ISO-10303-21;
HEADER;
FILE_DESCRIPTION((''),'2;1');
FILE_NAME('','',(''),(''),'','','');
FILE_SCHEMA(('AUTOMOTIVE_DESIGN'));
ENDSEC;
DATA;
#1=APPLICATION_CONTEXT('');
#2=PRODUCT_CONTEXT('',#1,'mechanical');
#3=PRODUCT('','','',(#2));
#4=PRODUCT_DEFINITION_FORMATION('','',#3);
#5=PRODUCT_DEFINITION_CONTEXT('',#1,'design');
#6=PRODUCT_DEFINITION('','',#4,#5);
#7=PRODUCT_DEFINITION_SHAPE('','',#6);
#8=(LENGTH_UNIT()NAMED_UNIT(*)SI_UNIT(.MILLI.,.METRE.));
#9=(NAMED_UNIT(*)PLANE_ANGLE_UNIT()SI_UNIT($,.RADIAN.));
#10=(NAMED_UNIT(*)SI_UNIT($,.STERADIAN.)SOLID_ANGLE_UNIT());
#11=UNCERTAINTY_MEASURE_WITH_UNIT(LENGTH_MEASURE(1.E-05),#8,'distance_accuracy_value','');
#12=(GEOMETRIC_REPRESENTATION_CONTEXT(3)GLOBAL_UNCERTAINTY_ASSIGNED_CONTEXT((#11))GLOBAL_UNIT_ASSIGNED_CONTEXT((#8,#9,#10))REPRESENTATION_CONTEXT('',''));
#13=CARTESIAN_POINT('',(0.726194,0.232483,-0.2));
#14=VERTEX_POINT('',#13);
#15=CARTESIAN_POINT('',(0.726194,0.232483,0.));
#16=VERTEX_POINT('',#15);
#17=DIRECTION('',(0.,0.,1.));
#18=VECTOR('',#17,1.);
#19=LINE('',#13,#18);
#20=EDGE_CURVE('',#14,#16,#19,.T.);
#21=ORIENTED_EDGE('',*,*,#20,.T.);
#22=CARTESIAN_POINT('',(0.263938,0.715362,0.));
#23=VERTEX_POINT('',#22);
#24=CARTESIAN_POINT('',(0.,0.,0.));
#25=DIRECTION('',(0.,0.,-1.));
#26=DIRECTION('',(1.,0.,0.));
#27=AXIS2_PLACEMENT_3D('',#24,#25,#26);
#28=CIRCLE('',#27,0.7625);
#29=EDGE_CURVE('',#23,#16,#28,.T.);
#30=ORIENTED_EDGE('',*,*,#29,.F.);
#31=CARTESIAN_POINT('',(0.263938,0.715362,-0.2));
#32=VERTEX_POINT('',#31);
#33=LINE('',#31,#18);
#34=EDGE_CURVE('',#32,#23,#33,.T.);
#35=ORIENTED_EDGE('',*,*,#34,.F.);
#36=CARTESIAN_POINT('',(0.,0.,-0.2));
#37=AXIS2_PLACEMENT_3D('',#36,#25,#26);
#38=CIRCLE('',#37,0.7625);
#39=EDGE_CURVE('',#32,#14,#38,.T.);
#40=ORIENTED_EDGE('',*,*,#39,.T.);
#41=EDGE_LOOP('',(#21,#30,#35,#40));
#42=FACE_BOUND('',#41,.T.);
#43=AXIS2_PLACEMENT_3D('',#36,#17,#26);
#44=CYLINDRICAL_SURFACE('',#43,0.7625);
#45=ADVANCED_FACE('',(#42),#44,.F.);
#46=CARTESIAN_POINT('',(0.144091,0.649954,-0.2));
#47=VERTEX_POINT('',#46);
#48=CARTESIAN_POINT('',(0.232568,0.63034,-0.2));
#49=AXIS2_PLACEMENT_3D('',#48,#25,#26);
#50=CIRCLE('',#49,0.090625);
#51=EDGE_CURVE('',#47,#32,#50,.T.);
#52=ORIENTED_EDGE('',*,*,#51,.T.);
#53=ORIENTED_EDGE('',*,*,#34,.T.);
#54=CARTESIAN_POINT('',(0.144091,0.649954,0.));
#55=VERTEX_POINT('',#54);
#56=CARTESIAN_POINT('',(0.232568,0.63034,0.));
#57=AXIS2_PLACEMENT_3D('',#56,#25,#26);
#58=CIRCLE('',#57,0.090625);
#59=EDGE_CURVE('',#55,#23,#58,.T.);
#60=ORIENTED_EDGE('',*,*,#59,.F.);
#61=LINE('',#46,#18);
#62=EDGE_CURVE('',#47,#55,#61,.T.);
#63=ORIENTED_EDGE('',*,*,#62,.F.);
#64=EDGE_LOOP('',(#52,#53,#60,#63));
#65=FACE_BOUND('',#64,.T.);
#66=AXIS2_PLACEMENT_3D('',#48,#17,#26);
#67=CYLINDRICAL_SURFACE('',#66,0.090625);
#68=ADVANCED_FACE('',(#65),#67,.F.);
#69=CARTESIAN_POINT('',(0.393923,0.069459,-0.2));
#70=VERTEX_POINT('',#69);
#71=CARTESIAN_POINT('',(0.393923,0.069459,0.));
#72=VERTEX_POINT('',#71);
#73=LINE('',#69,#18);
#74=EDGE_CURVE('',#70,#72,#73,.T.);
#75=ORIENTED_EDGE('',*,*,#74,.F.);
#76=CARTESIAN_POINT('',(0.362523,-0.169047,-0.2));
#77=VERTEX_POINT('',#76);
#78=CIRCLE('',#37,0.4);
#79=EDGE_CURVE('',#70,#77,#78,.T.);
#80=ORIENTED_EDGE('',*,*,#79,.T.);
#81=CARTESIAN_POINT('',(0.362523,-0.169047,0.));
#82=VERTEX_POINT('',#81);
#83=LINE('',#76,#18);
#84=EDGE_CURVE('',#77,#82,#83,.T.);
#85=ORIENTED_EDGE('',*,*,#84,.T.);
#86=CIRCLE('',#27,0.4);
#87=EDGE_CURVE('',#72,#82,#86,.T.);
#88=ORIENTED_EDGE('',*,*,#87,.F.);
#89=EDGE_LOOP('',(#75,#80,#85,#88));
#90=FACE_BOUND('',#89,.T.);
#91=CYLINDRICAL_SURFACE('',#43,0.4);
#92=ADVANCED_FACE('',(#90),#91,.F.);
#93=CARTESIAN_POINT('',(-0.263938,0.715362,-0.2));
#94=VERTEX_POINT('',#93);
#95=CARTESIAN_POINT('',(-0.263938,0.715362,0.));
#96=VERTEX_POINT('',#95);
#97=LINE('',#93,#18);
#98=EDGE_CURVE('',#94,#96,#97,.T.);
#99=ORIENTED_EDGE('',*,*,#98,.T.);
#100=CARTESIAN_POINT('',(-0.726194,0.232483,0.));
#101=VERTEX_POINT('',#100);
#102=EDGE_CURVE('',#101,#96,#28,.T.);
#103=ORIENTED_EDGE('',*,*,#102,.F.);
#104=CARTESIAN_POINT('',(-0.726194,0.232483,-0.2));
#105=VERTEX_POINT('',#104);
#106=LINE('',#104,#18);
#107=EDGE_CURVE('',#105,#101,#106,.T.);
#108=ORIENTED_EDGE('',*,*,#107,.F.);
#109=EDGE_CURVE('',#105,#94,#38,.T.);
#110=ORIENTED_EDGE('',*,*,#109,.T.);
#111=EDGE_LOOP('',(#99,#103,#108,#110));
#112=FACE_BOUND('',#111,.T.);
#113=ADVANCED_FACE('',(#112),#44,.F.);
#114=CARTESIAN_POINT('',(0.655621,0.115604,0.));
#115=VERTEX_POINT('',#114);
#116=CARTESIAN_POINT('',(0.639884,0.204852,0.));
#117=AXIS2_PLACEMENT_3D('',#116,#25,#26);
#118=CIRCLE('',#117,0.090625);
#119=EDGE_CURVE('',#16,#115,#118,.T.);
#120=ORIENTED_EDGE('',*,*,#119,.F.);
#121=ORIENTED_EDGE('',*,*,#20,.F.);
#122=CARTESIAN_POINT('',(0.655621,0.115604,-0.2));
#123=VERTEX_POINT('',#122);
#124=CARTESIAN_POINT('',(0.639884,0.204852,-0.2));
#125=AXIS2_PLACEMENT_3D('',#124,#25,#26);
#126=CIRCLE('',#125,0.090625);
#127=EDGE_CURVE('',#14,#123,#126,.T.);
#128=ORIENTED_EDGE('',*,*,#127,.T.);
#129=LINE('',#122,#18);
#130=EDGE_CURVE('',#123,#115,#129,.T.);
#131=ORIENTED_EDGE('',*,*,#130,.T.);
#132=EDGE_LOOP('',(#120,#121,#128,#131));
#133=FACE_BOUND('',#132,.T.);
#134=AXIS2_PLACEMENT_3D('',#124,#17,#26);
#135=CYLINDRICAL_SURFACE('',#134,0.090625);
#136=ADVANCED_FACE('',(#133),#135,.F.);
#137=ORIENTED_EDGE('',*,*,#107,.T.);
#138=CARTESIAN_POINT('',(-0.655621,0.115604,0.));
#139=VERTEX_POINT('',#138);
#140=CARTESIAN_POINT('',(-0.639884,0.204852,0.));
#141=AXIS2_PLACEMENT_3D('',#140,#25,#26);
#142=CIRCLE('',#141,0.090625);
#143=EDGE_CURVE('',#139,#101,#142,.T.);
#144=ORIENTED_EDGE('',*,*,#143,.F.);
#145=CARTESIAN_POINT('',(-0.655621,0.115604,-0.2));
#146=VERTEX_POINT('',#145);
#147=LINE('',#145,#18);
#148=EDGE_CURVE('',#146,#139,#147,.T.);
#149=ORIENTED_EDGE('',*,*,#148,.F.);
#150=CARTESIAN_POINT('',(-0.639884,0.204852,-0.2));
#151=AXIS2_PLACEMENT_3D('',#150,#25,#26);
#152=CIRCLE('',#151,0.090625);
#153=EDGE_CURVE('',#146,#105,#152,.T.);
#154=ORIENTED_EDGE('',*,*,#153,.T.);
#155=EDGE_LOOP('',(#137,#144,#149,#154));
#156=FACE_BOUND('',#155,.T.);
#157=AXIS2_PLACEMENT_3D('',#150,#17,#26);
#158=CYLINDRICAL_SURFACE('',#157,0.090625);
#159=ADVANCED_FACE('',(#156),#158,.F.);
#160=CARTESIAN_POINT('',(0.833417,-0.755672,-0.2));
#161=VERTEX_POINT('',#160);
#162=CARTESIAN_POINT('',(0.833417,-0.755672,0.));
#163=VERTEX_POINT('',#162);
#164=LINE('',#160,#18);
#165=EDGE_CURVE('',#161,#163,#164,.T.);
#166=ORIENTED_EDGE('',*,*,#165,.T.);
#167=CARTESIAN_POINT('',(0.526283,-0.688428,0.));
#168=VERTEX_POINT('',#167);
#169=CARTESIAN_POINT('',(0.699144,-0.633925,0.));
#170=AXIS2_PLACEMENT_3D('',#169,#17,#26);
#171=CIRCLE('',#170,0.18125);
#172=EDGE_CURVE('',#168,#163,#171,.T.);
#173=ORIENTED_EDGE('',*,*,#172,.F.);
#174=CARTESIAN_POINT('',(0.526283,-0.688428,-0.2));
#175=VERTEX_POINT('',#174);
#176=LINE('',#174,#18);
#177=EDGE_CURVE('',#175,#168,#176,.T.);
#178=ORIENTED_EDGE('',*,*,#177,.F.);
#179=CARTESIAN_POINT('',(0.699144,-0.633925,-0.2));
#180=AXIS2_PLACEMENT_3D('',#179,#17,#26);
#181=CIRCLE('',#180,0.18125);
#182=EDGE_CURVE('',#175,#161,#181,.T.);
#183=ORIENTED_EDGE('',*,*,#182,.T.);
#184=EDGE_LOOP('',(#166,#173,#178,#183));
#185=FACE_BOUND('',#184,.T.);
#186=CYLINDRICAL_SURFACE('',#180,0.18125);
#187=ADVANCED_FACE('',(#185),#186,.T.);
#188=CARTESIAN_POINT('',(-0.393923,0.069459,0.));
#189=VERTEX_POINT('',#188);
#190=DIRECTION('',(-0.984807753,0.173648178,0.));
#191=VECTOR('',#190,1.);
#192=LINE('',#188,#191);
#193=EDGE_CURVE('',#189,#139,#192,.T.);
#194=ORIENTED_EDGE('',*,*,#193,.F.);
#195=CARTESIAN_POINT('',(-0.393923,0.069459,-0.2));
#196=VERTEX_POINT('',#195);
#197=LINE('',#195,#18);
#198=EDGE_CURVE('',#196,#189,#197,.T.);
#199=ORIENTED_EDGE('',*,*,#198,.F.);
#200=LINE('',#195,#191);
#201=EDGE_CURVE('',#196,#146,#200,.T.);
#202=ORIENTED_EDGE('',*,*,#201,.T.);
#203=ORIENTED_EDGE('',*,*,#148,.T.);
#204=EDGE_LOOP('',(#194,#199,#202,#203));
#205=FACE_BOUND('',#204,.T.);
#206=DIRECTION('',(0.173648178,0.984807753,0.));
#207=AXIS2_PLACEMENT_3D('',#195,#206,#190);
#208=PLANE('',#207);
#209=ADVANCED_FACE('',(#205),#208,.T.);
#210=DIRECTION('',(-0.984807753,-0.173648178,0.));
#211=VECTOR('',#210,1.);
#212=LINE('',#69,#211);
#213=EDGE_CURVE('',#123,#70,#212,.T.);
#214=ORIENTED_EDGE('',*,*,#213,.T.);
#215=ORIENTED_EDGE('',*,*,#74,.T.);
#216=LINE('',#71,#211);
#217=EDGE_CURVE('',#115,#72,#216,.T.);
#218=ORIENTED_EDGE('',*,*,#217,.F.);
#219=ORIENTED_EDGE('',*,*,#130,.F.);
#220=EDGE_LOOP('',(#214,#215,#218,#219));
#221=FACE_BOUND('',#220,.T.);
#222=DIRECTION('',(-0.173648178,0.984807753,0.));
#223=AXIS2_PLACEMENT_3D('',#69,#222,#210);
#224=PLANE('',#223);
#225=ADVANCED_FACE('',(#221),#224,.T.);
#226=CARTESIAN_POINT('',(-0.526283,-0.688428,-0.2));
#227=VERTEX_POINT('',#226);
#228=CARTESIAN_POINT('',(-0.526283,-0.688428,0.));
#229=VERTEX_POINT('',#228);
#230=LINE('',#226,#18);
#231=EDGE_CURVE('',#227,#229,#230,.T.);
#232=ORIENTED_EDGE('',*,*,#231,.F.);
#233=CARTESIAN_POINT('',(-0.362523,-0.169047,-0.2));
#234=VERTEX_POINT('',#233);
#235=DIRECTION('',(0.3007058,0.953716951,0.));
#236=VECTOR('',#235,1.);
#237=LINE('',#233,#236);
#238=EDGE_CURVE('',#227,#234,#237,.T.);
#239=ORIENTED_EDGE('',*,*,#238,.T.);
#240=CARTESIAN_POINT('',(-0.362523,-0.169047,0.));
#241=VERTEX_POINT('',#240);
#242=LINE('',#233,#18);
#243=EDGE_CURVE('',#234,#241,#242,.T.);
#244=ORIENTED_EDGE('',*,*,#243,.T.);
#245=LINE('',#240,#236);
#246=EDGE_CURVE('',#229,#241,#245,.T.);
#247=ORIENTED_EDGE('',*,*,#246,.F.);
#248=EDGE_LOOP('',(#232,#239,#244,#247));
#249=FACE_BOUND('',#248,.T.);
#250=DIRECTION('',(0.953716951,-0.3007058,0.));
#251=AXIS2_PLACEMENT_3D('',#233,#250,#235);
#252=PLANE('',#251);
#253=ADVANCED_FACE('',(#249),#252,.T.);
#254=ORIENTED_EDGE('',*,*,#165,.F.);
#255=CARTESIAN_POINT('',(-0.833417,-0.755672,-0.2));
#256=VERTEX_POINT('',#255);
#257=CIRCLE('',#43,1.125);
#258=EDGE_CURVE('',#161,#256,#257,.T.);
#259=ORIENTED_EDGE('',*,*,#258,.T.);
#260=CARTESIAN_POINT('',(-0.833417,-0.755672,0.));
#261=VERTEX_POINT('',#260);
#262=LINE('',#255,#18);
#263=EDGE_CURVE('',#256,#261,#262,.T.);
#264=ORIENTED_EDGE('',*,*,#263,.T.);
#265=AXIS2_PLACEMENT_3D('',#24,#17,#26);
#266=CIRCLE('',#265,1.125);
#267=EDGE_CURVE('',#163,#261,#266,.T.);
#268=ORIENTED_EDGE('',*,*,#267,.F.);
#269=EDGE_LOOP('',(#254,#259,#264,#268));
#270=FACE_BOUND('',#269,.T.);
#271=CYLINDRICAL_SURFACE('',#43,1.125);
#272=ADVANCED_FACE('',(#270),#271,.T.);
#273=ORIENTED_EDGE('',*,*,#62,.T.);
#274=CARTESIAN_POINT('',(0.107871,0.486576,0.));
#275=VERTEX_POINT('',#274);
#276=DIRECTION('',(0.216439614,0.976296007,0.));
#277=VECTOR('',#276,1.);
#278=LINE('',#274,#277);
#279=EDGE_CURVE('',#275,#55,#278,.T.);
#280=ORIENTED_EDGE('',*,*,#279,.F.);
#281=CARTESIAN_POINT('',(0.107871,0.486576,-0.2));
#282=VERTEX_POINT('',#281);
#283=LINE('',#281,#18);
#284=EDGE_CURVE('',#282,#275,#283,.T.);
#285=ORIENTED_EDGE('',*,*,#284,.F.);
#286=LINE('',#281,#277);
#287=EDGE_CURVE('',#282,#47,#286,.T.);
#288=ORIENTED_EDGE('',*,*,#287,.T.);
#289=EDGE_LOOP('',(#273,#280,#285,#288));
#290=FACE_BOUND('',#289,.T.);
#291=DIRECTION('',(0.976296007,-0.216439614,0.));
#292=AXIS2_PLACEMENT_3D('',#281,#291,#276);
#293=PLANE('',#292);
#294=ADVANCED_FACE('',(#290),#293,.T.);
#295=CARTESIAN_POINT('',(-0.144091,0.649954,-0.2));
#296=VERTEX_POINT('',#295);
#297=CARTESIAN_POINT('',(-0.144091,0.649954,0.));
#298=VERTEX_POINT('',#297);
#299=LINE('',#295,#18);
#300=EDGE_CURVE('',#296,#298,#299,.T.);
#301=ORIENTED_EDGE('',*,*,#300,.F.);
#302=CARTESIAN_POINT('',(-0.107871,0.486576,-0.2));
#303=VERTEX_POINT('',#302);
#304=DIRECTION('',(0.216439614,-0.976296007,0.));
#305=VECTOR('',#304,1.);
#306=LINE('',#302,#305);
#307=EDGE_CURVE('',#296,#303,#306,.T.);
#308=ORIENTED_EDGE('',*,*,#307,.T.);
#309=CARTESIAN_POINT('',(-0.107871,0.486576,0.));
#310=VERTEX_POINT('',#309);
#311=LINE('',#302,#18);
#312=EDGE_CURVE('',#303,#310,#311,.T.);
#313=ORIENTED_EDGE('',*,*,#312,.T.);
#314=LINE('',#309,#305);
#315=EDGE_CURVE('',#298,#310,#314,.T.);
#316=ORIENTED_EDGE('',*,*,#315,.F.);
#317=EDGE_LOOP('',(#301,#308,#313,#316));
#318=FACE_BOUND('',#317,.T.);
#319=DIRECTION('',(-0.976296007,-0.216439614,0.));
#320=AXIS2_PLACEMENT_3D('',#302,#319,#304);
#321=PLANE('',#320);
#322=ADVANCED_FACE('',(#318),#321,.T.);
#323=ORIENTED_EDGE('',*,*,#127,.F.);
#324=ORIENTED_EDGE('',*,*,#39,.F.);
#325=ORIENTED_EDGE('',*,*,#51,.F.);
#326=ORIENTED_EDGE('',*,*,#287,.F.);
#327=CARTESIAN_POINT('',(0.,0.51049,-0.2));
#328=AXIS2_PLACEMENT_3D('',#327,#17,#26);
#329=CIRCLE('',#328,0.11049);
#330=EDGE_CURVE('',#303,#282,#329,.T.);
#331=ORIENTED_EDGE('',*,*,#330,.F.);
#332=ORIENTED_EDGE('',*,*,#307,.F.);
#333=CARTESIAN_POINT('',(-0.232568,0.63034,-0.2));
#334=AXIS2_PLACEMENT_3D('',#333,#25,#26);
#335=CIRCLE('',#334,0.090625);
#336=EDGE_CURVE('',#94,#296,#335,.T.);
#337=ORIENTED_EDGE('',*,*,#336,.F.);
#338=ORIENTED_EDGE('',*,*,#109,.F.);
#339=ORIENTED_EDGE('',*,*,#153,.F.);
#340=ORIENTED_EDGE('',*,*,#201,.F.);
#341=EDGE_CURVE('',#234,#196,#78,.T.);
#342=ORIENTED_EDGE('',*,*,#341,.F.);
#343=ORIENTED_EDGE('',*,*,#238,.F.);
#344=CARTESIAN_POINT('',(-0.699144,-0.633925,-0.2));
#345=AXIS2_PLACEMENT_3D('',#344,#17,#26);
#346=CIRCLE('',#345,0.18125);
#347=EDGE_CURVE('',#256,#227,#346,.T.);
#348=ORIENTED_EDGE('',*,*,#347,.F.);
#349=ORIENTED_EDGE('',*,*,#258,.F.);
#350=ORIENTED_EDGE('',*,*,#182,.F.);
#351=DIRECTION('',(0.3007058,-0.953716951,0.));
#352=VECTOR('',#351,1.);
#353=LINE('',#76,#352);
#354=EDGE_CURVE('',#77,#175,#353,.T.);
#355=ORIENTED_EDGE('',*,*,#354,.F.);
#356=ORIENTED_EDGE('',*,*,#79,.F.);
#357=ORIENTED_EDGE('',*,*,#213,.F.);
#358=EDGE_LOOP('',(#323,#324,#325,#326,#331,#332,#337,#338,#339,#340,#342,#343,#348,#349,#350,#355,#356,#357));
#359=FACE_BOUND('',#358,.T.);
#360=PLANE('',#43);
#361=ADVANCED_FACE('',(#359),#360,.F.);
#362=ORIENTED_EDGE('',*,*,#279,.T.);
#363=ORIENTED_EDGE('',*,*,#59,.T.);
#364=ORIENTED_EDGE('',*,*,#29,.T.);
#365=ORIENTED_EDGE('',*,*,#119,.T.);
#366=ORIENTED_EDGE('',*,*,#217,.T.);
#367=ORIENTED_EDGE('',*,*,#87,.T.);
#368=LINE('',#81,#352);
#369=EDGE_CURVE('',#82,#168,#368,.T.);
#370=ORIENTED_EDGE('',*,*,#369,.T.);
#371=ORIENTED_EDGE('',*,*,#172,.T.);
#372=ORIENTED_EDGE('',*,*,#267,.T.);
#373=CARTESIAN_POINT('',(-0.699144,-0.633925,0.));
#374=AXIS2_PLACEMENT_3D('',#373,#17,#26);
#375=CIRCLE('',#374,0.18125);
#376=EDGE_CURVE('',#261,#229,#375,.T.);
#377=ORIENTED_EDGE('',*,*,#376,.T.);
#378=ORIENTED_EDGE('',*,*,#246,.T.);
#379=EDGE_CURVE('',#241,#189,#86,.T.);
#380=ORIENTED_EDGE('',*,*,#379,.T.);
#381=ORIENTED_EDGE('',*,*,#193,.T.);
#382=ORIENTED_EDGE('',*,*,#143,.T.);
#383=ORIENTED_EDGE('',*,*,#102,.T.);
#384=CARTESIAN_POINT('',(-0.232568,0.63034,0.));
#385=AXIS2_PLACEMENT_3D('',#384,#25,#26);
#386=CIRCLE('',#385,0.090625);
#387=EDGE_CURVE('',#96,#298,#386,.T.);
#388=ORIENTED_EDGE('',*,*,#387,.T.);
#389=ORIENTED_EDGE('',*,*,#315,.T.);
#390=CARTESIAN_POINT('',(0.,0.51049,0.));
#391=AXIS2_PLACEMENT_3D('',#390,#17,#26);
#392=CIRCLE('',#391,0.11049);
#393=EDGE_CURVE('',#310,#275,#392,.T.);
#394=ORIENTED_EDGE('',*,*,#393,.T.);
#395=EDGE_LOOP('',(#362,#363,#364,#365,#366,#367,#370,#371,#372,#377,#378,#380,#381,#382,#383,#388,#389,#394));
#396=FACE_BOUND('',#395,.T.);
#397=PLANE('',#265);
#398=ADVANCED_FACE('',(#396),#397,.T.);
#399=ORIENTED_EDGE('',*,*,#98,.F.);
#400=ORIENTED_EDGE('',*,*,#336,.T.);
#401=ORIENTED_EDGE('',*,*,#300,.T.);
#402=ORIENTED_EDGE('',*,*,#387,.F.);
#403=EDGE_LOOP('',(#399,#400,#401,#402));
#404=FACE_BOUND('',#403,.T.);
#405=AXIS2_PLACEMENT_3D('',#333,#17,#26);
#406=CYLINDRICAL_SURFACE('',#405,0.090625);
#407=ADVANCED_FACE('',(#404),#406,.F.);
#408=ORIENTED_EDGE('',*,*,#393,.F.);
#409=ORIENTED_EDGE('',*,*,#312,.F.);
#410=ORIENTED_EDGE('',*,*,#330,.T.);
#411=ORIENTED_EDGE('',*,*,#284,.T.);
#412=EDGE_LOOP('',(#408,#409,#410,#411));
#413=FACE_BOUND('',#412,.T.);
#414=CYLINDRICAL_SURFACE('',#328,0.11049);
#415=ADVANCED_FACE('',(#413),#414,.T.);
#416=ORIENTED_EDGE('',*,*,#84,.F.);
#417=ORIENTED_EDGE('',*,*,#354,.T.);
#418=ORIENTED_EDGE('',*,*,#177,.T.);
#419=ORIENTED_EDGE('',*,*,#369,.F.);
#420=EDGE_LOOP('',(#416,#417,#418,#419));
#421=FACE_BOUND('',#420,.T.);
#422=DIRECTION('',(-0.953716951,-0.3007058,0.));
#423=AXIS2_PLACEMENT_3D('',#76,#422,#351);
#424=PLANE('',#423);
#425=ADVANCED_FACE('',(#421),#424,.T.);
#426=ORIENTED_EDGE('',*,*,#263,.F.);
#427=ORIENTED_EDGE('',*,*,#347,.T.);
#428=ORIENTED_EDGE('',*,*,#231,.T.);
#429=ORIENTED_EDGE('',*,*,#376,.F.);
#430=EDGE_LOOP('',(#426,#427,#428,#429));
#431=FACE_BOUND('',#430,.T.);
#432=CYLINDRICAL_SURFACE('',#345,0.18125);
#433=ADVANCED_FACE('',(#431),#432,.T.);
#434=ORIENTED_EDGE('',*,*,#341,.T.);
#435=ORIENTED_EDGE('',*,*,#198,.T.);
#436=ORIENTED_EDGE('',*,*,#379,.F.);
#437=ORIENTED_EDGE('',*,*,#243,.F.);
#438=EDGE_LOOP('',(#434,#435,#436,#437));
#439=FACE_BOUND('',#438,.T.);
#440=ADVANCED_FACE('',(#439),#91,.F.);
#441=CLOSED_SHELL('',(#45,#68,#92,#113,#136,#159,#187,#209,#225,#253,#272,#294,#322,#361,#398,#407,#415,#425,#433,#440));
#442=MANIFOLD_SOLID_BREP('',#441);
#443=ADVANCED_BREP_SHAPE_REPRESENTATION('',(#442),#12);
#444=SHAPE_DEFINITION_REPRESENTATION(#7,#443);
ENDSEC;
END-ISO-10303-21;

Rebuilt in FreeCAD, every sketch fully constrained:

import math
import FreeCAD as App
import Part
import Sketcher
Q = App.Units.Quantity

doc = App.newDocument("Part")
params = doc.addObject("Spreadsheet::Sheet", "Params")
for row, (alias, value) in enumerate([
    ("sketch1_radius", "0.4 mm"),
    ("pad1_length", "0.2 mm"),
], start=1):
    params.set(f"A{row}", alias)
    params.set(f"B{row}", "=" + value)
    params.setAlias(f"B{row}", alias)

body = doc.addObject("PartDesign::Body", "Body")

# Sketch on XY plane
sketch1 = body.newObject("Sketcher::SketchObject", "Sketch")
sketch1.AttachmentSupport = (doc.getObject("XY_Plane"), [""])
sketch1.MapMode = "FlatFace"
sketch1.addGeometry([
    Part.LineSegment(App.Vector(0.66, 0.12, 0), App.Vector(0.39, 0.07, 0)),  # 0
    Part.ArcOfCircle(Part.Circle(App.Vector(0, 0, 0), App.Vector(0, 0, 1), 0.4), math.radians(-25), math.radians(10)),  # 1
    Part.LineSegment(App.Vector(0.36, -0.17, 0), App.Vector(0.53, -0.69, 0)),  # 2
    Part.ArcOfCircle(Part.Circle(App.Vector(0.7, -0.63, 0), App.Vector(0, 0, 1), 0.18), math.radians(-162), math.radians(-42)),  # 3
    Part.ArcOfCircle(Part.Circle(App.Vector(0, 0, 0), App.Vector(0, 0, 1), 1.12), math.radians(-42), math.radians(222)),  # 4
    Part.ArcOfCircle(Part.Circle(App.Vector(-0.7, -0.63, 0), App.Vector(0, 0, 1), 0.18), math.radians(-138), math.radians(-18)),  # 5
    Part.LineSegment(App.Vector(-0.53, -0.69, 0), App.Vector(-0.36, -0.17, 0)),  # 6
    Part.ArcOfCircle(Part.Circle(App.Vector(0, 0, 0), App.Vector(0, 0, 1), 0.4), math.radians(170), math.radians(205)),  # 7
    Part.LineSegment(App.Vector(-0.39, 0.07, 0), App.Vector(-0.66, 0.12, 0)),  # 8
    Part.ArcOfCircle(Part.Circle(App.Vector(-0.64, 0.2, 0), App.Vector(0, 0, 1), 0.09), math.radians(162), math.radians(260)),  # 9
    Part.ArcOfCircle(Part.Circle(App.Vector(0, 0, 0), App.Vector(0, 0, 1), 0.76), math.radians(110), math.radians(162)),  # 10
    Part.ArcOfCircle(Part.Circle(App.Vector(-0.23, 0.63, 0), App.Vector(0, 0, 1), 0.09), math.radians(13), math.radians(110)),  # 11
    Part.LineSegment(App.Vector(-0.14, 0.65, 0), App.Vector(-0.11, 0.49, 0)),  # 12
    Part.ArcOfCircle(Part.Circle(App.Vector(0, 0.51, 0), App.Vector(0, 0, 1), 0.11), math.radians(-168), math.radians(-12)),  # 13
    Part.LineSegment(App.Vector(0.11, 0.49, 0), App.Vector(0.14, 0.65, 0)),  # 14
    Part.ArcOfCircle(Part.Circle(App.Vector(0.23, 0.63, 0), App.Vector(0, 0, 1), 0.09), math.radians(70), math.radians(167)),  # 15
    Part.ArcOfCircle(Part.Circle(App.Vector(0, 0, 0), App.Vector(0, 0, 1), 0.76), math.radians(18), math.radians(70)),  # 16
    Part.ArcOfCircle(Part.Circle(App.Vector(0.64, 0.2, 0), App.Vector(0, 0, 1), 0.09), math.radians(-80), math.radians(18)),  # 17
], False)
sketch1.addConstraint([
    Sketcher.Constraint("Coincident", 0, 2, 1, 2),
    Sketcher.Constraint("Coincident", 1, 1, 2, 1),
    Sketcher.Constraint("Tangent", 2, 2, 3, 1),
    Sketcher.Constraint("Tangent", 3, 2, 4, 1),
    Sketcher.Constraint("Tangent", 4, 2, 5, 1),
    Sketcher.Constraint("Tangent", 5, 2, 6, 1),
    Sketcher.Constraint("Coincident", 6, 2, 7, 2),
    Sketcher.Constraint("Coincident", 7, 1, 8, 1),
    Sketcher.Constraint("Tangent", 8, 2, 9, 2),
    Sketcher.Constraint("Tangent", 9, 1, 10, 2),
    Sketcher.Constraint("Tangent", 10, 1, 11, 2),
    Sketcher.Constraint("Tangent", 11, 1, 12, 1),
    Sketcher.Constraint("Tangent", 12, 2, 13, 1),
    Sketcher.Constraint("Tangent", 13, 2, 14, 1),
    Sketcher.Constraint("Tangent", 14, 2, 15, 2),
    Sketcher.Constraint("Tangent", 15, 1, 16, 2),
    Sketcher.Constraint("Tangent", 16, 1, 17, 2),
    Sketcher.Constraint("Tangent", 17, 1, 0, 1),
    Sketcher.Constraint("Coincident", 1, 3, -1, 1),
    Sketcher.Constraint("Coincident", 4, 3, -1, 1),
    Sketcher.Constraint("Coincident", 7, 3, -1, 1),
    Sketcher.Constraint("Coincident", 10, 3, -1, 1),
    Sketcher.Constraint("Coincident", 16, 3, -1, 1),
    Sketcher.Constraint("Equal", 3, 5),
    Sketcher.Constraint("Equal", 1, 7),
    Sketcher.Constraint("Equal", 9, 11),
    Sketcher.Constraint("Equal", 11, 15),
    Sketcher.Constraint("Equal", 10, 16),
    Sketcher.Constraint("Equal", 15, 17),
    Sketcher.Constraint("Symmetric", 2, 2, 5, 2, -2),
    Sketcher.Constraint("Symmetric", 12, 2, 13, 2, -2),
    Sketcher.Constraint("Symmetric", 8, 2, 17, 1, -2),
    Sketcher.Constraint("Radius", 1, 0.4),
    Sketcher.Constraint("Angle", 0, Q("-170 deg")),
    Sketcher.Constraint("Angle", 2, Q("-72.5 deg")),
    Sketcher.Constraint("Angle", 12, Q("-77.5 deg")),
    Sketcher.Constraint("Radius", 4, 1.125),
    Sketcher.Constraint("Radius", 10, 0.7625),
    Sketcher.Constraint("Radius", 3, 0.18125),
    Sketcher.Constraint("Radius", 13, 0.11049),
    Sketcher.Constraint("Radius", 9, 0.090625),
    Sketcher.Constraint("DistanceX", 1, 1, 0, 2, 0.0314),
    Sketcher.Constraint("DistanceY", -1, 1, 9, 3, 0.204852),
    Sketcher.Constraint("DistanceX", 11, 3, -1, 1, 0.232568),
])
sketch1.setExpression("Constraints[32]", "Params.sketch1_radius")
pad1 = body.newObject("PartDesign::Pad", "Pad")
pad1.Profile = sketch1
pad1.setExpression("Length", "Params.pad1_length")
pad1.Reversed = True

doc.recompute()
